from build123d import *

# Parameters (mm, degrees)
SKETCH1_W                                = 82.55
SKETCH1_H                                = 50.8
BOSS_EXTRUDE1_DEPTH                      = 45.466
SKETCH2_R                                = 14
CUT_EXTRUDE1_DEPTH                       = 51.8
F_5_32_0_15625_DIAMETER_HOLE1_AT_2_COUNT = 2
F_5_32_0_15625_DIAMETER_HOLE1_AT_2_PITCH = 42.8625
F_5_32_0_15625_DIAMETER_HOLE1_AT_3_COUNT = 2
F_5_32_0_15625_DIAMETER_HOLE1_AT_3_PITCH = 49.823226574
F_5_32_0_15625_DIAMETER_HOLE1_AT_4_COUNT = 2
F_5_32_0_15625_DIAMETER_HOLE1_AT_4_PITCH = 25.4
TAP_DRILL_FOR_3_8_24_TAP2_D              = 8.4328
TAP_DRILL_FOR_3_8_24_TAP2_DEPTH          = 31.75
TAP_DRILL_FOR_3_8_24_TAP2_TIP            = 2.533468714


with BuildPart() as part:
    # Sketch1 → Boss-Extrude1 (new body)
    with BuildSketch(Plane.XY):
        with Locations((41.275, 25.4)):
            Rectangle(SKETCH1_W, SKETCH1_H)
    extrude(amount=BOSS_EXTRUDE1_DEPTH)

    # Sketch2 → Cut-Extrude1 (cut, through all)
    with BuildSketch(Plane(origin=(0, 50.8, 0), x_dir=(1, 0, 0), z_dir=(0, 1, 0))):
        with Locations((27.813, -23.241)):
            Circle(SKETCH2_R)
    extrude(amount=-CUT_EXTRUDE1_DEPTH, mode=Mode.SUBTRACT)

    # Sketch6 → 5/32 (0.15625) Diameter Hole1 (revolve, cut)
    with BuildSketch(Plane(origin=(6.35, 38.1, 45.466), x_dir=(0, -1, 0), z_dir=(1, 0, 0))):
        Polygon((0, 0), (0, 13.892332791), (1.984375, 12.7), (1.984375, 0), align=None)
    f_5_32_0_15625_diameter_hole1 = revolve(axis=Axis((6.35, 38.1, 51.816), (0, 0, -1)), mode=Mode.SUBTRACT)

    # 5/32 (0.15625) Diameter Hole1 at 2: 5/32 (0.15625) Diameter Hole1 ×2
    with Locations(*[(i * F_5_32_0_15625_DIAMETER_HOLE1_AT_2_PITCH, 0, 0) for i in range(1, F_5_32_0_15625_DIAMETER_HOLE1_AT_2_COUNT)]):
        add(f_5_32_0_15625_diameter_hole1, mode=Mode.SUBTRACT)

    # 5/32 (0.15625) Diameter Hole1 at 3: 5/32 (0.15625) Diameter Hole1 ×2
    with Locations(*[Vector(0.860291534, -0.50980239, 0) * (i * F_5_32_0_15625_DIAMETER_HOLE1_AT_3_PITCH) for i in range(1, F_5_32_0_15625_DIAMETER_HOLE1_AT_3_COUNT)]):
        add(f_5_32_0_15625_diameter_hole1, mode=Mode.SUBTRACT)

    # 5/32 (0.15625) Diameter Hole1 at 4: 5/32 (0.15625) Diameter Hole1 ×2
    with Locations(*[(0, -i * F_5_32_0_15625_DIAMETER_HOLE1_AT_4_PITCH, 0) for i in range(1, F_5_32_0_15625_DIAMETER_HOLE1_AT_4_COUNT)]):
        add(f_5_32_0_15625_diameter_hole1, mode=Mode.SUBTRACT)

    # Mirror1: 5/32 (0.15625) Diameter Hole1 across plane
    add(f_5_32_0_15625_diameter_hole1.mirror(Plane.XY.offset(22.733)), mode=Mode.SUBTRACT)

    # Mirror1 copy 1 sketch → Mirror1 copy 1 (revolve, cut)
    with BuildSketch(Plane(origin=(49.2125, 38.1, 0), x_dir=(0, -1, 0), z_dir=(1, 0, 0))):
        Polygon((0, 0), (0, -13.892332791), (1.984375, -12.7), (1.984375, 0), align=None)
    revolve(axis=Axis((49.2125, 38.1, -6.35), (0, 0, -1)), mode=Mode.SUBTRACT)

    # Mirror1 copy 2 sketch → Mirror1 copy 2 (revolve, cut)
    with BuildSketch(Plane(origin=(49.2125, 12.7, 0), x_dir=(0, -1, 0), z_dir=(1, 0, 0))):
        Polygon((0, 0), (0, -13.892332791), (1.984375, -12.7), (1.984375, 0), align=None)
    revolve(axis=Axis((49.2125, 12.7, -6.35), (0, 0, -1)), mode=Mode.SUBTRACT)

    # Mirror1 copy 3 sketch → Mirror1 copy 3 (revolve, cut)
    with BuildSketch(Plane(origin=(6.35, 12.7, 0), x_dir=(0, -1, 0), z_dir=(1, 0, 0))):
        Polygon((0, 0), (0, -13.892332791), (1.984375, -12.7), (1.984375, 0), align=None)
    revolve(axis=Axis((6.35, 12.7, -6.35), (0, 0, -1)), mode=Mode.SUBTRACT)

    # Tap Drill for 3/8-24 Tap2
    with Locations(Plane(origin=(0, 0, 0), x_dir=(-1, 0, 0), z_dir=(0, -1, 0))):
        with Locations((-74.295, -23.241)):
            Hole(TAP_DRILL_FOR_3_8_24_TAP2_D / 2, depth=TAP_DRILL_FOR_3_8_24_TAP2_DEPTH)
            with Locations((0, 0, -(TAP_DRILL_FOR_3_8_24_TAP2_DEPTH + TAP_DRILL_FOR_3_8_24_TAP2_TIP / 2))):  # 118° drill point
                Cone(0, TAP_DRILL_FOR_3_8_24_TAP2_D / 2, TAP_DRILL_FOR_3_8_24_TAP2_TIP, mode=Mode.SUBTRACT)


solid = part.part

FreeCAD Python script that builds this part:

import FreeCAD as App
import Part
import Sketcher

V = App.Vector
Q = App.Units.Quantity

doc = App.newDocument("Part")
params = doc.addObject("Spreadsheet::Sheet", "Params")
for row, (alias, value) in enumerate([
    ("sketch1_height", "2 in"),
    ("sketch1_width", "3.25 in"),
    ("pad1_length", "1.79 in"),
    ("sketch3_height", "0.5 in"),
    ("sketch3_width", "0.078125 in"),
    ("groove_angle", "360 deg"),
    ("linearpattern_pitch", "1.6875 in"),
    ("linearpattern2_pitch", "49.823227 mm"),
    ("linearpattern3_pitch", "1 in"),
    ("sketch4_height", "0.5 in"),
    ("sketch4_width", "0.078125 in"),
    ("groove2_angle", "360 deg"),
    ("sketch5_height", "0.5 in"),
    ("sketch5_width", "0.078125 in"),
    ("groove3_angle", "360 deg"),
    ("sketch6_height", "0.5 in"),
    ("sketch6_width", "0.078125 in"),
    ("groove4_angle", "360 deg"),
    ("sketch7_diameter", "0.332 in"),
    ("hole_diameter", "0.332 in"),
    ("hole_depth", "1.25 in"),
], start=1):
    params.set(f"A{row}", alias)
    params.set(f"B{row}", "=" + value)
    params.setAlias(f"B{row}", alias)

body = doc.addObject("PartDesign::Body", "Body")

sketch1 = body.newObject("Sketcher::SketchObject", "Sketch")
sketch1.AttachmentSupport = (doc.getObject("XY_Plane"), [""])
sketch1.MapMode = "FlatFace"
sketch1.addGeometry(Part.LineSegment(V(0, 51, 0), V(0, 0, 0)), False)
sketch1.addGeometry(Part.LineSegment(V(0, 0, 0), V(83, 0, 0)), False)
sketch1.addGeometry(Part.LineSegment(V(83, 0, 0), V(83, 51, 0)), False)
sketch1.addGeometry(Part.LineSegment(V(83, 51, 0), V(0, 51, 0)), False)
sketch1.addConstraint(Sketcher.Constraint("Coincident", 0, 2, 1, 1))
sketch1.addConstraint(Sketcher.Constraint("Coincident", 1, 2, 2, 1))
sketch1.addConstraint(Sketcher.Constraint("Coincident", 2, 2, 3, 1))
sketch1.addConstraint(Sketcher.Constraint("Coincident", 3, 2, 0, 1))
sketch1.addConstraint(Sketcher.Constraint("Vertical", 0))
sketch1.addConstraint(Sketcher.Constraint("Horizontal", 1))
sketch1.addConstraint(Sketcher.Constraint("Vertical", 2))
sketch1.addConstraint(Sketcher.Constraint("Horizontal", 3))
sketch1.addConstraint(Sketcher.Constraint("Coincident", 0, 2, -1, 1))
sketch1.addConstraint(Sketcher.Constraint("DistanceY", 0, 2, 0, 1, Q("2 in")))
sketch1.addConstraint(Sketcher.Constraint("DistanceX", 1, 1, 1, 2, Q("3.25 in")))
sketch1.setExpression("Constraints[9]", "Params.sketch1_height")
sketch1.setExpression("Constraints[10]", "Params.sketch1_width")
pad1 = body.newObject("PartDesign::Pad", "Pad")
pad1.Profile = sketch1
pad1.setExpression("Length", "Params.pad1_length")

sketch2 = body.newObject("Sketcher::SketchObject", "Sketch001")
sketch2.AttachmentSupport = (doc.getObject("XZ_Plane"), [""])
sketch2.MapMode = "FlatFace"
sketch2.AttachmentOffset = App.Placement(V(0, 0, -2 * 25.4), App.Rotation())
sketch2.addGeometry(Part.Circle(V(28, 23, 0), V(0, 0, 1), 14), False)
sketch2.addConstraint(Sketcher.Constraint("Diameter", 0, 28.0))
sketch2.addConstraint(Sketcher.Constraint("DistanceX", -1, 1, 0, 3, Q("1.095 in")))
sketch2.addConstraint(Sketcher.Constraint("DistanceY", -1, 1, 0, 3, Q("0.915 in")))
pocket1 = body.newObject("PartDesign::Pocket", "Pocket")
pocket1.Profile = sketch2
pocket1.Type = "ThroughAll"
pocket1.Reversed = True

sketch3 = body.newObject("Sketcher::SketchObject", "Sketch002")
sketch3.AttachmentSupport = (doc.getObject("YZ_Plane"), [""])
sketch3.MapMode = "FlatFace"
sketch3.AttachmentOffset = App.Placement(V(0, 0, 0.25 * 25.4), App.Rotation())
sketch3.addGeometry(Part.LineSegment(V(38.1, 31.6, 0), V(38.1, 45.5, 0)), False)
sketch3.addGeometry(Part.LineSegment(V(38.1, 45.5, 0), V(36.1, 45.5, 0)), False)
sketch3.addGeometry(Part.LineSegment(V(36.1, 45.5, 0), V(36.1, 32.8, 0)), False)
sketch3.addGeometry(Part.LineSegment(V(36.1, 32.8, 0), V(38.1, 31.6, 0)), False)
sketch3.addGeometry(Part.LineSegment(V(38.1, 45.5, 0), V(38.1, 31.6, 0)), True)
sketch3.addConstraint(Sketcher.Constraint("Coincident", 0, 2, 1, 1))
sketch3.addConstraint(Sketcher.Constraint("Coincident", 1, 2, 2, 1))
sketch3.addConstraint(Sketcher.Constraint("Coincident", 2, 2, 3, 1))
sketch3.addConstraint(Sketcher.Constraint("Coincident", 3, 2, 0, 1))
sketch3.addConstraint(Sketcher.Constraint("Vertical", 0))
sketch3.addConstraint(Sketcher.Constraint("Horizontal", 1))
sketch3.addConstraint(Sketcher.Constraint("Vertical", 2))
sketch3.addConstraint(Sketcher.Constraint("Vertical", 4))
sketch3.addConstraint(Sketcher.Constraint("Coincident", 4, 1, 0, 2))
sketch3.addConstraint(Sketcher.Constraint("Equal", 0, 4))
sketch3.addConstraint(Sketcher.Constraint("DistanceY", 2, 2, 2, 1, Q("0.5 in")))
sketch3.addConstraint(Sketcher.Constraint("Angle", 3, Q("-31 deg")))
sketch3.addConstraint(Sketcher.Constraint("DistanceX", -1, 1, 0, 2, Q("1.5 in")))
sketch3.addConstraint(Sketcher.Constraint("DistanceX", 1, 2, 1, 1, Q("0.078125 in")))
sketch3.addConstraint(Sketcher.Constraint("DistanceY", -1, 1, 0, 2, Q("1.79 in")))
sketch3.setExpression("Constraints[10]", "Params.sketch3_height")
sketch3.setExpression("Constraints[13]", "Params.sketch3_width")
groove = body.newObject("PartDesign::Groove", "Groove")
groove.Profile = sketch3
groove.ReferenceAxis = (sketch3, ["Axis0"])
groove.setExpression("Angle", "Params.groove_angle")
doc.recompute()

linearpattern = body.newObject("PartDesign::LinearPattern", "LinearPattern")
linearpattern.Originals = [groove]
linearpattern.Direction = (doc.getObject("X_Axis"), [""])
linearpattern.Mode = "offset"
linearpattern.setExpression("Offset", "Params.linearpattern_pitch")
linearpattern.Occurrences = 2
body.Tip = linearpattern
doc.recompute()

datumline = body.newObject("PartDesign::Line", "DatumLine")
datumline.Placement = App.Placement(V(0, 0, 0), App.Rotation(V(0, 0, 1), V(0.860291534, -0.50980239, 0)))
linearpattern2 = body.newObject("PartDesign::LinearPattern", "LinearPattern001")
linearpattern2.Originals = [groove]
linearpattern2.Direction = (datumline, [""])
linearpattern2.Mode = "offset"
linearpattern2.setExpression("Offset", "Params.linearpattern2_pitch")
linearpattern2.Occurrences = 2
body.Tip = linearpattern2
doc.recompute()

linearpattern3 = body.newObject("PartDesign::LinearPattern", "LinearPattern002")
linearpattern3.Originals = [groove]
linearpattern3.Direction = (doc.getObject("Y_Axis"), [""])
linearpattern3.Mode = "offset"
linearpattern3.setExpression("Offset", "Params.linearpattern3_pitch")
linearpattern3.Occurrences = 2
linearpattern3.Reversed = True
body.Tip = linearpattern3
doc.recompute()

datumplane = body.newObject("PartDesign::Plane", "DatumPlane")
datumplane.AttachmentSupport = (doc.getObject("XY_Plane"), [""])
datumplane.MapMode = "FlatFace"
datumplane.AttachmentOffset = App.Placement(V(0, 0, 0.895 * 25.4), App.Rotation())
mirrored = body.newObject("PartDesign::Mirrored", "Mirrored")
mirrored.Originals = [groove]
mirrored.MirrorPlane = (datumplane, [""])
body.Tip = mirrored

sketch4 = body.newObject("Sketcher::SketchObject", "Sketch003")
sketch4.AttachmentSupport = (doc.getObject("YZ_Plane"), [""])
sketch4.MapMode = "FlatFace"
sketch4.AttachmentOffset = App.Placement(V(0, 0, 1.9375 * 25.4), App.Rotation())
sketch4.addGeometry(Part.LineSegment(V(38.1, 0, 0), V(38.1, 13.9, 0)), False)
sketch4.addGeometry(Part.LineSegment(V(38.1, 13.9, 0), V(36.1, 12.7, 0)), False)
sketch4.addGeometry(Part.LineSegment(V(36.1, 12.7, 0), V(36.1, 0, 0)), False)
sketch4.addGeometry(Part.LineSegment(V(36.1, 0, 0), V(38.1, 0, 0)), False)
sketch4.addGeometry(Part.LineSegment(V(38.1, 13.9, 0), V(38.1, 0, 0)), True)
sketch4.addConstraint(Sketcher.Constraint("Coincident", 0, 2, 1, 1))
sketch4.addConstraint(Sketcher.Constraint("Coincident", 1, 2, 2, 1))
sketch4.addConstraint(Sketcher.Constraint("Coincident", 2, 2, 3, 1))
sketch4.addConstraint(Sketcher.Constraint("Coincident", 3, 2, 0, 1))
sketch4.addConstraint(Sketcher.Constraint("Vertical", 0))
sketch4.addConstraint(Sketcher.Constraint("Vertical", 2))
sketch4.addConstraint(Sketcher.Constraint("Horizontal", 3))
sketch4.addConstraint(Sketcher.Constraint("Vertical", 4))
sketch4.addConstraint(Sketcher.Constraint("Coincident", 4, 1, 0, 2))
sketch4.addConstraint(Sketcher.Constraint("PointOnObject", 2, 2, -1))
sketch4.addConstraint(Sketcher.Constraint("PointOnObject", 4, 2, -1))
sketch4.addConstraint(Sketcher.Constraint("DistanceY", 2, 2, 2, 1, Q("0.5 in")))
sketch4.addConstraint(Sketcher.Constraint("Angle", 1, Q("-149 deg")))
sketch4.addConstraint(Sketcher.Constraint("DistanceX", -1, 1, 0, 2, Q("1.5 in")))
sketch4.addConstraint(Sketcher.Constraint("DistanceX", 3, 1, 3, 2, Q("0.078125 in")))
sketch4.setExpression("Constraints[11]", "Params.sketch4_height")
sketch4.setExpression("Constraints[14]", "Params.sketch4_width")
groove2 = body.newObject("PartDesign::Groove", "Groove001")
groove2.Profile = sketch4
groove2.ReferenceAxis = (sketch4, ["Axis0"])
groove2.setExpression("Angle", "Params.groove2_angle")

sketch5 = body.newObject("Sketcher::SketchObject", "Sketch004")
sketch5.AttachmentSupport = (doc.getObject("YZ_Plane"), [""])
sketch5.MapMode = "FlatFace"
sketch5.AttachmentOffset = App.Placement(V(0, 0, 1.9375 * 25.4), App.Rotation())
sketch5.addGeometry(Part.LineSegment(V(12.7, 0, 0), V(12.7, 13.9, 0)), False)
sketch5.addGeometry(Part.LineSegment(V(12.7, 13.9, 0), V(10.7, 12.7, 0)), False)
sketch5.addGeometry(Part.LineSegment(V(10.7, 12.7, 0), V(10.7, 0, 0)), False)
sketch5.addGeometry(Part.LineSegment(V(10.7, 0, 0), V(12.7, 0, 0)), False)
sketch5.addGeometry(Part.LineSegment(V(12.7, 13.9, 0), V(12.7, 0, 0)), True)
sketch5.addConstraint(Sketcher.Constraint("Coincident", 0, 2, 1, 1))
sketch5.addConstraint(Sketcher.Constraint("Coincident", 1, 2, 2, 1))
sketch5.addConstraint(Sketcher.Constraint("Coincident", 2, 2, 3, 1))
sketch5.addConstraint(Sketcher.Constraint("Coincident", 3, 2, 0, 1))
sketch5.addConstraint(Sketcher.Constraint("Vertical", 0))
sketch5.addConstraint(Sketcher.Constraint("Vertical", 2))
sketch5.addConstraint(Sketcher.Constraint("Horizontal", 3))
sketch5.addConstraint(Sketcher.Constraint("Vertical", 4))
sketch5.addConstraint(Sketcher.Constraint("Coincident", 4, 1, 0, 2))
sketch5.addConstraint(Sketcher.Constraint("PointOnObject", 2, 2, -1))
sketch5.addConstraint(Sketcher.Constraint("PointOnObject", 4, 2, -1))
sketch5.addConstraint(Sketcher.Constraint("DistanceY", 2, 2, 2, 1, Q("0.5 in")))
sketch5.addConstraint(Sketcher.Constraint("Angle", 1, Q("-149 deg")))
sketch5.addConstraint(Sketcher.Constraint("DistanceX", -1, 1, 0, 2, Q("0.5 in")))
sketch5.addConstraint(Sketcher.Constraint("DistanceX", 3, 1, 3, 2, Q("0.078125 in")))
sketch5.setExpression("Constraints[11]", "Params.sketch5_height")
sketch5.setExpression("Constraints[14]", "Params.sketch5_width")
groove3 = body.newObject("PartDesign::Groove", "Groove002")
groove3.Profile = sketch5
groove3.ReferenceAxis = (sketch5, ["Axis0"])
groove3.setExpression("Angle", "Params.groove3_angle")

sketch6 = body.newObject("Sketcher::SketchObject", "Sketch005")
sketch6.AttachmentSupport = (doc.getObject("YZ_Plane"), [""])
sketch6.MapMode = "FlatFace"
sketch6.AttachmentOffset = App.Placement(V(0, 0, 0.25 * 25.4), App.Rotation())
sketch6.addGeometry(Part.LineSegment(V(12.7, 0, 0), V(12.7, 13.9, 0)), False)
sketch6.addGeometry(Part.LineSegment(V(12.7, 13.9, 0), V(10.7, 12.7, 0)), False)
sketch6.addGeometry(Part.LineSegment(V(10.7, 12.7, 0), V(10.7, 0, 0)), False)
sketch6.addGeometry(Part.LineSegment(V(10.7, 0, 0), V(12.7, 0, 0)), False)
sketch6.addGeometry(Part.LineSegment(V(12.7, 13.9, 0), V(12.7, 0, 0)), True)
sketch6.addConstraint(Sketcher.Constraint("Coincident", 0, 2, 1, 1))
sketch6.addConstraint(Sketcher.Constraint("Coincident", 1, 2, 2, 1))
sketch6.addConstraint(Sketcher.Constraint("Coincident", 2, 2, 3, 1))
sketch6.addConstraint(Sketcher.Constraint("Coincident", 3, 2, 0, 1))
sketch6.addConstraint(Sketcher.Constraint("Vertical", 0))
sketch6.addConstraint(Sketcher.Constraint("Vertical", 2))
sketch6.addConstraint(Sketcher.Constraint("Horizontal", 3))
sketch6.addConstraint(Sketcher.Constraint("Vertical", 4))
sketch6.addConstraint(Sketcher.Constraint("Coincident", 4, 1, 0, 2))
sketch6.addConstraint(Sketcher.Constraint("PointOnObject", 2, 2, -1))
sketch6.addConstraint(Sketcher.Constraint("PointOnObject", 4, 2, -1))
sketch6.addConstraint(Sketcher.Constraint("DistanceY", 2, 2, 2, 1, Q("0.5 in")))
sketch6.addConstraint(Sketcher.Constraint("Angle", 1, Q("-149 deg")))
sketch6.addConstraint(Sketcher.Constraint("DistanceX", -1, 1, 0, 2, Q("0.5 in")))
sketch6.addConstraint(Sketcher.Constraint("DistanceX", 3, 1, 3, 2, Q("0.078125 in")))
sketch6.setExpression("Constraints[11]", "Params.sketch6_height")
sketch6.setExpression("Constraints[14]", "Params.sketch6_width")
groove4 = body.newObject("PartDesign::Groove", "Groove003")
groove4.Profile = sketch6
groove4.ReferenceAxis = (sketch6, ["Axis0"])
groove4.setExpression("Angle", "Params.groove4_angle")

sketch7 = body.newObject("Sketcher::SketchObject", "Sketch006")
sketch7.AttachmentSupport = (doc.getObject("XZ_Plane"), [""])
sketch7.MapMode = "FlatFace"
sketch7.addGeometry(Part.Circle(V(74.3, 23.2, 0), V(0, 0, 1), 4.2), False)
sketch7.addConstraint(Sketcher.Constraint("Diameter", 0, Q("0.332 in")))
sketch7.addConstraint(Sketcher.Constraint("DistanceX", -1, 1, 0, 3, Q("2.925 in")))
sketch7.addConstraint(Sketcher.Constraint("DistanceY", -1, 1, 0, 3, Q("0.915 in")))
sketch7.setExpression("Constraints[0]", "Params.sketch7_diameter")
doc.recompute()
hole = body.newObject("PartDesign::Hole", "Hole")
hole.Profile = sketch7
hole.ThreadType = "None"
hole.setExpression("Diameter", "Params.hole_diameter")
hole.DepthType = "Dimension"
hole.setExpression("Depth", "Params.hole_depth")
hole.DrillPoint = "Angled"
hole.DrillPointAngle = 118

doc.recompute()
